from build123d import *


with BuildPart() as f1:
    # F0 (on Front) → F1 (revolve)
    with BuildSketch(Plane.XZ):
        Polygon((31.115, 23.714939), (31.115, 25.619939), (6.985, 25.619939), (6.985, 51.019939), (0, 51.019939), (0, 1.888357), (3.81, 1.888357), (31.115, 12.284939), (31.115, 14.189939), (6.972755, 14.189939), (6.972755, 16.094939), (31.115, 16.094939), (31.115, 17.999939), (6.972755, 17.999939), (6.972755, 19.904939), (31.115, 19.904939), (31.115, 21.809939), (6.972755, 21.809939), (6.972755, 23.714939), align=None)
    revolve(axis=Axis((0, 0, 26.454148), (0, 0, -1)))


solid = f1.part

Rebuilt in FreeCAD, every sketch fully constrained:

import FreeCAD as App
import Part
import Sketcher
from FreeCAD import Vector
Q = App.Units.Quantity


def add_polygon(sketch, points):
    """Adds a closed chain of lines whose ends are joined by coincident constraints."""
    first, n = sketch.GeometryCount, len(points)
    for a, b in zip(points, points[1:] + points[:1]):
        sketch.addGeometry(Part.LineSegment(App.Vector(*a, 0), App.Vector(*b, 0)), False)
    for i in range(n):
        sketch.addConstraint(Sketcher.Constraint("Coincident", first + i, 2, first + (i + 1) % n, 1))

doc = App.newDocument("Part")
body = doc.addObject("PartDesign::Body", "Body")

sketch1 = doc.addObject("Sketcher::SketchObject", "Sketch")
body.addObject(sketch1)
sketch1.AttachmentSupport = (doc.XZ_Plane, [""])
sketch1.MapMode = "FlatFace"
add_polygon(sketch1, [(31.115, 23.714939), (31.115, 25.619939), (6.985, 25.619939), (6.985, 51.019939), (0, 51.019939), (0, 1.888357), (3.81, 1.888357), (31.115, 12.284939), (31.115, 14.189939), (6.972755, 14.189939), (6.972755, 16.094939), (31.115, 16.094939), (31.115, 17.999939), (6.972755, 17.999939), (6.972755, 19.904939), (31.115, 19.904939), (31.115, 21.809939), (6.972755, 21.809939), (6.972755, 23.714939)])
sketch1.addConstraint([
    Sketcher.Constraint("Vertical", 0),
    Sketcher.Constraint("Horizontal", 1),
    Sketcher.Constraint("Vertical", 2),
    Sketcher.Constraint("Horizontal", 3),
    Sketcher.Constraint("Vertical", 4),
    Sketcher.Constraint("Horizontal", 5),
    Sketcher.Constraint("Vertical", 7),
    Sketcher.Constraint("Horizontal", 8),
    Sketcher.Constraint("Vertical", 9),
    Sketcher.Constraint("Horizontal", 10),
    Sketcher.Constraint("Vertical", 11),
    Sketcher.Constraint("Horizontal", 12),
    Sketcher.Constraint("Vertical", 13),
    Sketcher.Constraint("Horizontal", 14),
    Sketcher.Constraint("Vertical", 15),
    Sketcher.Constraint("Horizontal", 16),
    Sketcher.Constraint("Vertical", 17),
    Sketcher.Constraint("Horizontal", 18),
    Sketcher.Constraint("PointOnObject", 3, 2, -2),
    Sketcher.Constraint("Vertical", 0, 2, 6, 2),
    Sketcher.Constraint("Vertical", 7, 2, 10, 2),
    Sketcher.Constraint("Vertical", 9, 2, 12, 2),
    Sketcher.Constraint("Vertical", 11, 2, 14, 2),
    Sketcher.Constraint("Vertical", 13, 2, 16, 2),
    Sketcher.Constraint("Equal", 0, 7),
    Sketcher.Constraint("Equal", 7, 9),
    Sketcher.Constraint("Equal", 9, 11),
    Sketcher.Constraint("Equal", 11, 13),
    Sketcher.Constraint("Equal", 13, 15),
    Sketcher.Constraint("Equal", 15, 17),
    Sketcher.Constraint("DistanceY", 2, 1, 2, 2, Q("1 in")),
    Sketcher.Constraint("DistanceX", 1, 2, 1, 1, Q("0.95 in")),
    Sketcher.Constraint("DistanceX", 5, 1, 5, 2, Q("0.15 in")),
    Sketcher.Constraint("DistanceY", 11, 2, 0, 2, Q("0.3 in")),
    Sketcher.Constraint("DistanceX", 3, 2, 3, 1, Q("0.275 in")),
    Sketcher.Constraint("DistanceX", 8, 2, 8, 1, Q("24.142245 mm")),
    Sketcher.Constraint("DistanceY", 4, 2, 4, 1, Q("49.131582 mm")),
    Sketcher.Constraint("DistanceY", -1, 1, 0, 2, Q("25.619939 mm")),
])
revolution = doc.addObject("PartDesign::Revolution", "Revolution")
body.addObject(revolution)
revolution.Profile = sketch1
revolution.ReferenceAxis = (sketch1, ["V_Axis"])
revolution.Angle = 360

doc.recompute()
